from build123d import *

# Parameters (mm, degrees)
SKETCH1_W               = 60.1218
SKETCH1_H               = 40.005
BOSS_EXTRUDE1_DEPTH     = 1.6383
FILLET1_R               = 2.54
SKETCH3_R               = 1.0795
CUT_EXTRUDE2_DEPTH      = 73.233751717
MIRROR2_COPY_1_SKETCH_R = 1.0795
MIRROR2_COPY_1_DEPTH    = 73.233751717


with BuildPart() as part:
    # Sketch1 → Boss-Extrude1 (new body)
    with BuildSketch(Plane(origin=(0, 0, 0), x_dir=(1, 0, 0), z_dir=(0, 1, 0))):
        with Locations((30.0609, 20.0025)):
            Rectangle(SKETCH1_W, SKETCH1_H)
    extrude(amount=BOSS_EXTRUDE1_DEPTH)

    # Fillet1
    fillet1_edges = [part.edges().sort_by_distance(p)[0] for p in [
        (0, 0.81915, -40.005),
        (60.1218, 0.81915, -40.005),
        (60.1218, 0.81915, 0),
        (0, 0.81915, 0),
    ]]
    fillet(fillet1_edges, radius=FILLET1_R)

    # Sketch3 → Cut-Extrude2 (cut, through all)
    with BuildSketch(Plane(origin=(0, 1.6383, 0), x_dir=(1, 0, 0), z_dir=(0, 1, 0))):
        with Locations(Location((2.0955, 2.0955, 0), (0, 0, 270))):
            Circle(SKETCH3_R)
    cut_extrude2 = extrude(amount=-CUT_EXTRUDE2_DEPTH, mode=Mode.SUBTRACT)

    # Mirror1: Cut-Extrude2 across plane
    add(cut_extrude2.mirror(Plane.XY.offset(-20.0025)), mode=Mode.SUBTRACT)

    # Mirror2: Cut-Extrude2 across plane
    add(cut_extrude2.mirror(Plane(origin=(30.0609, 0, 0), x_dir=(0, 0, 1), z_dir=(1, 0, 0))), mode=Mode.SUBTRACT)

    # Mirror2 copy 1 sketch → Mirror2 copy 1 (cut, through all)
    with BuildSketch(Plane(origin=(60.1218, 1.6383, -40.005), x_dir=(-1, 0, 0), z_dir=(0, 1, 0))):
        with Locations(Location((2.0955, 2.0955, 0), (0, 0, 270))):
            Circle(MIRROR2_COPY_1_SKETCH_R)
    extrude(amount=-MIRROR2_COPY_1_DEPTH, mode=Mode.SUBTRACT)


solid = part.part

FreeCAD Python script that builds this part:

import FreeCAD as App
import Part
import Sketcher
from FreeCAD import Vector
Q = App.Units.Quantity


def edges_at(feature, points):
    """Names of the edges that pass closest to the given points."""
    edges = feature.Shape.Edges
    near = lambda p: min(range(len(edges)), key=lambda i: edges[i].distToShape(Part.Vertex(*p))[0])
    return sorted({f"Edge{near(p) + 1}" for p in points})

doc = App.newDocument("Part")
body = doc.addObject("PartDesign::Body", "Body")

# Sketch on XZ plane
sketch1 = body.newObject("Sketcher::SketchObject", "Sketch")
sketch1.AttachmentSupport = (doc.getObject("XZ_Plane"), [""])
sketch1.MapMode = "FlatFace"
sketch1.addGeometry([
    Part.LineSegment(Vector(0, -40, 0), Vector(0, 0, 0)),
    Part.LineSegment(Vector(0, 0, 0), Vector(60, 0, 0)),
    Part.LineSegment(Vector(60, 0, 0), Vector(60, -40, 0)),
    Part.LineSegment(Vector(60, -40, 0), Vector(0, -40, 0)),
], False)
sketch1.addConstraint([
    Sketcher.Constraint("Coincident", 0, 2, 1, 1),
    Sketcher.Constraint("Coincident", 1, 2, 2, 1),
    Sketcher.Constraint("Coincident", 2, 2, 3, 1),
    Sketcher.Constraint("Coincident", 3, 2, 0, 1),
    Sketcher.Constraint("Vertical", 0),
    Sketcher.Constraint("Horizontal", 1),
    Sketcher.Constraint("Vertical", 2),
    Sketcher.Constraint("Horizontal", 3),
    Sketcher.Constraint("Coincident", 0, 2, -1, 1),
    Sketcher.Constraint("DistanceX", 1, 1, 1, 2, Q("2.367 in")),
    Sketcher.Constraint("DistanceY", 0, 1, 0, 2, Q("1.575 in")),
])
pad1 = body.newObject("PartDesign::Pad", "Pad")
pad1.Profile = sketch1
pad1.Length = Q("0.0645 in")
pad1.Reversed = True
doc.recompute()

fillet = body.newObject("PartDesign::Fillet", "Fillet")
fillet.Base = (pad1, edges_at(pad1, [
    (0, 0.819, -40.005),
    (60.122, 0.819, -40.005),
    (60.122, 0.819, 0),
    (0, 0.819, 0),
]))
fillet.Radius = Q("0.1 in")

# Sketch on XZ plane
sketch2 = body.newObject("Sketcher::SketchObject", "Sketch001")
sketch2.AttachmentSupport = (doc.getObject("XZ_Plane"), [""])
sketch2.MapMode = "FlatFace"
sketch2.AttachmentOffset = App.Placement(Vector(0, 0, -0.0645 * 25.4), App.Rotation())
sketch2.addGeometry(Part.Circle(Vector(2.1, -2.1, 0), Vector(0, 0, 1), 1.1), False)
sketch2.addConstraint([
    Sketcher.Constraint("Diameter", 0, Q("0.085 in")),
    Sketcher.Constraint("DistanceX", -1, 1, 0, 3, Q("0.0825 in")),
    Sketcher.Constraint("DistanceY", 0, 3, -1, 1, Q("0.0825 in")),
])
pocket1 = body.newObject("PartDesign::Pocket", "Pocket")
pocket1.Profile = sketch2
pocket1.Type = "ThroughAll"
pocket1.Reversed = True
doc.recompute()

datumplane = body.newObject("PartDesign::Plane", "DatumPlane")
datumplane.AttachmentSupport = (doc.getObject("XY_Plane"), [""])
datumplane.MapMode = "FlatFace"
datumplane.AttachmentOffset = App.Placement(Vector(0, 0, -0.7875 * 25.4), App.Rotation())
mirrored = body.newObject("PartDesign::Mirrored", "Mirrored")
mirrored.Originals = [pocket1]
mirrored.MirrorPlane = (datumplane, [""])
body.Tip = mirrored
doc.recompute()

datumplane2 = body.newObject("PartDesign::Plane", "DatumPlane001")
datumplane2.AttachmentSupport = (doc.getObject("YZ_Plane"), [""])
datumplane2.MapMode = "FlatFace"
datumplane2.AttachmentOffset = App.Placement(Vector(0, 0, 1.1835 * 25.4), App.Rotation())
mirrored2 = body.newObject("PartDesign::Mirrored", "Mirrored001")
mirrored2.Originals = [pocket1]
mirrored2.MirrorPlane = (datumplane2, [""])
body.Tip = mirrored2

# Sketch on XZ plane
sketch3 = body.newObject("Sketcher::SketchObject", "Sketch002")
sketch3.AttachmentSupport = (doc.getObject("XZ_Plane"), [""])
sketch3.MapMode = "FlatFace"
sketch3.AttachmentOffset = App.Placement(Vector(0, 0, -0.0645 * 25.4), App.Rotation())
sketch3.addGeometry(Part.Circle(Vector(58, -37.9, 0), Vector(0, 0, 1), 1.1), False)
sketch3.addConstraint([
    Sketcher.Constraint("Diameter", 0, Q("0.085 in")),
    Sketcher.Constraint("DistanceX", -1, 1, 0, 3, Q("2.2845 in")),
    Sketcher.Constraint("DistanceY", 0, 3, -1, 1, Q("1.4925 in")),
])
pocket2 = body.newObject("PartDesign::Pocket", "Pocket001")
pocket2.Profile = sketch3
pocket2.Type = "ThroughAll"
pocket2.Reversed = True

doc.recompute()
